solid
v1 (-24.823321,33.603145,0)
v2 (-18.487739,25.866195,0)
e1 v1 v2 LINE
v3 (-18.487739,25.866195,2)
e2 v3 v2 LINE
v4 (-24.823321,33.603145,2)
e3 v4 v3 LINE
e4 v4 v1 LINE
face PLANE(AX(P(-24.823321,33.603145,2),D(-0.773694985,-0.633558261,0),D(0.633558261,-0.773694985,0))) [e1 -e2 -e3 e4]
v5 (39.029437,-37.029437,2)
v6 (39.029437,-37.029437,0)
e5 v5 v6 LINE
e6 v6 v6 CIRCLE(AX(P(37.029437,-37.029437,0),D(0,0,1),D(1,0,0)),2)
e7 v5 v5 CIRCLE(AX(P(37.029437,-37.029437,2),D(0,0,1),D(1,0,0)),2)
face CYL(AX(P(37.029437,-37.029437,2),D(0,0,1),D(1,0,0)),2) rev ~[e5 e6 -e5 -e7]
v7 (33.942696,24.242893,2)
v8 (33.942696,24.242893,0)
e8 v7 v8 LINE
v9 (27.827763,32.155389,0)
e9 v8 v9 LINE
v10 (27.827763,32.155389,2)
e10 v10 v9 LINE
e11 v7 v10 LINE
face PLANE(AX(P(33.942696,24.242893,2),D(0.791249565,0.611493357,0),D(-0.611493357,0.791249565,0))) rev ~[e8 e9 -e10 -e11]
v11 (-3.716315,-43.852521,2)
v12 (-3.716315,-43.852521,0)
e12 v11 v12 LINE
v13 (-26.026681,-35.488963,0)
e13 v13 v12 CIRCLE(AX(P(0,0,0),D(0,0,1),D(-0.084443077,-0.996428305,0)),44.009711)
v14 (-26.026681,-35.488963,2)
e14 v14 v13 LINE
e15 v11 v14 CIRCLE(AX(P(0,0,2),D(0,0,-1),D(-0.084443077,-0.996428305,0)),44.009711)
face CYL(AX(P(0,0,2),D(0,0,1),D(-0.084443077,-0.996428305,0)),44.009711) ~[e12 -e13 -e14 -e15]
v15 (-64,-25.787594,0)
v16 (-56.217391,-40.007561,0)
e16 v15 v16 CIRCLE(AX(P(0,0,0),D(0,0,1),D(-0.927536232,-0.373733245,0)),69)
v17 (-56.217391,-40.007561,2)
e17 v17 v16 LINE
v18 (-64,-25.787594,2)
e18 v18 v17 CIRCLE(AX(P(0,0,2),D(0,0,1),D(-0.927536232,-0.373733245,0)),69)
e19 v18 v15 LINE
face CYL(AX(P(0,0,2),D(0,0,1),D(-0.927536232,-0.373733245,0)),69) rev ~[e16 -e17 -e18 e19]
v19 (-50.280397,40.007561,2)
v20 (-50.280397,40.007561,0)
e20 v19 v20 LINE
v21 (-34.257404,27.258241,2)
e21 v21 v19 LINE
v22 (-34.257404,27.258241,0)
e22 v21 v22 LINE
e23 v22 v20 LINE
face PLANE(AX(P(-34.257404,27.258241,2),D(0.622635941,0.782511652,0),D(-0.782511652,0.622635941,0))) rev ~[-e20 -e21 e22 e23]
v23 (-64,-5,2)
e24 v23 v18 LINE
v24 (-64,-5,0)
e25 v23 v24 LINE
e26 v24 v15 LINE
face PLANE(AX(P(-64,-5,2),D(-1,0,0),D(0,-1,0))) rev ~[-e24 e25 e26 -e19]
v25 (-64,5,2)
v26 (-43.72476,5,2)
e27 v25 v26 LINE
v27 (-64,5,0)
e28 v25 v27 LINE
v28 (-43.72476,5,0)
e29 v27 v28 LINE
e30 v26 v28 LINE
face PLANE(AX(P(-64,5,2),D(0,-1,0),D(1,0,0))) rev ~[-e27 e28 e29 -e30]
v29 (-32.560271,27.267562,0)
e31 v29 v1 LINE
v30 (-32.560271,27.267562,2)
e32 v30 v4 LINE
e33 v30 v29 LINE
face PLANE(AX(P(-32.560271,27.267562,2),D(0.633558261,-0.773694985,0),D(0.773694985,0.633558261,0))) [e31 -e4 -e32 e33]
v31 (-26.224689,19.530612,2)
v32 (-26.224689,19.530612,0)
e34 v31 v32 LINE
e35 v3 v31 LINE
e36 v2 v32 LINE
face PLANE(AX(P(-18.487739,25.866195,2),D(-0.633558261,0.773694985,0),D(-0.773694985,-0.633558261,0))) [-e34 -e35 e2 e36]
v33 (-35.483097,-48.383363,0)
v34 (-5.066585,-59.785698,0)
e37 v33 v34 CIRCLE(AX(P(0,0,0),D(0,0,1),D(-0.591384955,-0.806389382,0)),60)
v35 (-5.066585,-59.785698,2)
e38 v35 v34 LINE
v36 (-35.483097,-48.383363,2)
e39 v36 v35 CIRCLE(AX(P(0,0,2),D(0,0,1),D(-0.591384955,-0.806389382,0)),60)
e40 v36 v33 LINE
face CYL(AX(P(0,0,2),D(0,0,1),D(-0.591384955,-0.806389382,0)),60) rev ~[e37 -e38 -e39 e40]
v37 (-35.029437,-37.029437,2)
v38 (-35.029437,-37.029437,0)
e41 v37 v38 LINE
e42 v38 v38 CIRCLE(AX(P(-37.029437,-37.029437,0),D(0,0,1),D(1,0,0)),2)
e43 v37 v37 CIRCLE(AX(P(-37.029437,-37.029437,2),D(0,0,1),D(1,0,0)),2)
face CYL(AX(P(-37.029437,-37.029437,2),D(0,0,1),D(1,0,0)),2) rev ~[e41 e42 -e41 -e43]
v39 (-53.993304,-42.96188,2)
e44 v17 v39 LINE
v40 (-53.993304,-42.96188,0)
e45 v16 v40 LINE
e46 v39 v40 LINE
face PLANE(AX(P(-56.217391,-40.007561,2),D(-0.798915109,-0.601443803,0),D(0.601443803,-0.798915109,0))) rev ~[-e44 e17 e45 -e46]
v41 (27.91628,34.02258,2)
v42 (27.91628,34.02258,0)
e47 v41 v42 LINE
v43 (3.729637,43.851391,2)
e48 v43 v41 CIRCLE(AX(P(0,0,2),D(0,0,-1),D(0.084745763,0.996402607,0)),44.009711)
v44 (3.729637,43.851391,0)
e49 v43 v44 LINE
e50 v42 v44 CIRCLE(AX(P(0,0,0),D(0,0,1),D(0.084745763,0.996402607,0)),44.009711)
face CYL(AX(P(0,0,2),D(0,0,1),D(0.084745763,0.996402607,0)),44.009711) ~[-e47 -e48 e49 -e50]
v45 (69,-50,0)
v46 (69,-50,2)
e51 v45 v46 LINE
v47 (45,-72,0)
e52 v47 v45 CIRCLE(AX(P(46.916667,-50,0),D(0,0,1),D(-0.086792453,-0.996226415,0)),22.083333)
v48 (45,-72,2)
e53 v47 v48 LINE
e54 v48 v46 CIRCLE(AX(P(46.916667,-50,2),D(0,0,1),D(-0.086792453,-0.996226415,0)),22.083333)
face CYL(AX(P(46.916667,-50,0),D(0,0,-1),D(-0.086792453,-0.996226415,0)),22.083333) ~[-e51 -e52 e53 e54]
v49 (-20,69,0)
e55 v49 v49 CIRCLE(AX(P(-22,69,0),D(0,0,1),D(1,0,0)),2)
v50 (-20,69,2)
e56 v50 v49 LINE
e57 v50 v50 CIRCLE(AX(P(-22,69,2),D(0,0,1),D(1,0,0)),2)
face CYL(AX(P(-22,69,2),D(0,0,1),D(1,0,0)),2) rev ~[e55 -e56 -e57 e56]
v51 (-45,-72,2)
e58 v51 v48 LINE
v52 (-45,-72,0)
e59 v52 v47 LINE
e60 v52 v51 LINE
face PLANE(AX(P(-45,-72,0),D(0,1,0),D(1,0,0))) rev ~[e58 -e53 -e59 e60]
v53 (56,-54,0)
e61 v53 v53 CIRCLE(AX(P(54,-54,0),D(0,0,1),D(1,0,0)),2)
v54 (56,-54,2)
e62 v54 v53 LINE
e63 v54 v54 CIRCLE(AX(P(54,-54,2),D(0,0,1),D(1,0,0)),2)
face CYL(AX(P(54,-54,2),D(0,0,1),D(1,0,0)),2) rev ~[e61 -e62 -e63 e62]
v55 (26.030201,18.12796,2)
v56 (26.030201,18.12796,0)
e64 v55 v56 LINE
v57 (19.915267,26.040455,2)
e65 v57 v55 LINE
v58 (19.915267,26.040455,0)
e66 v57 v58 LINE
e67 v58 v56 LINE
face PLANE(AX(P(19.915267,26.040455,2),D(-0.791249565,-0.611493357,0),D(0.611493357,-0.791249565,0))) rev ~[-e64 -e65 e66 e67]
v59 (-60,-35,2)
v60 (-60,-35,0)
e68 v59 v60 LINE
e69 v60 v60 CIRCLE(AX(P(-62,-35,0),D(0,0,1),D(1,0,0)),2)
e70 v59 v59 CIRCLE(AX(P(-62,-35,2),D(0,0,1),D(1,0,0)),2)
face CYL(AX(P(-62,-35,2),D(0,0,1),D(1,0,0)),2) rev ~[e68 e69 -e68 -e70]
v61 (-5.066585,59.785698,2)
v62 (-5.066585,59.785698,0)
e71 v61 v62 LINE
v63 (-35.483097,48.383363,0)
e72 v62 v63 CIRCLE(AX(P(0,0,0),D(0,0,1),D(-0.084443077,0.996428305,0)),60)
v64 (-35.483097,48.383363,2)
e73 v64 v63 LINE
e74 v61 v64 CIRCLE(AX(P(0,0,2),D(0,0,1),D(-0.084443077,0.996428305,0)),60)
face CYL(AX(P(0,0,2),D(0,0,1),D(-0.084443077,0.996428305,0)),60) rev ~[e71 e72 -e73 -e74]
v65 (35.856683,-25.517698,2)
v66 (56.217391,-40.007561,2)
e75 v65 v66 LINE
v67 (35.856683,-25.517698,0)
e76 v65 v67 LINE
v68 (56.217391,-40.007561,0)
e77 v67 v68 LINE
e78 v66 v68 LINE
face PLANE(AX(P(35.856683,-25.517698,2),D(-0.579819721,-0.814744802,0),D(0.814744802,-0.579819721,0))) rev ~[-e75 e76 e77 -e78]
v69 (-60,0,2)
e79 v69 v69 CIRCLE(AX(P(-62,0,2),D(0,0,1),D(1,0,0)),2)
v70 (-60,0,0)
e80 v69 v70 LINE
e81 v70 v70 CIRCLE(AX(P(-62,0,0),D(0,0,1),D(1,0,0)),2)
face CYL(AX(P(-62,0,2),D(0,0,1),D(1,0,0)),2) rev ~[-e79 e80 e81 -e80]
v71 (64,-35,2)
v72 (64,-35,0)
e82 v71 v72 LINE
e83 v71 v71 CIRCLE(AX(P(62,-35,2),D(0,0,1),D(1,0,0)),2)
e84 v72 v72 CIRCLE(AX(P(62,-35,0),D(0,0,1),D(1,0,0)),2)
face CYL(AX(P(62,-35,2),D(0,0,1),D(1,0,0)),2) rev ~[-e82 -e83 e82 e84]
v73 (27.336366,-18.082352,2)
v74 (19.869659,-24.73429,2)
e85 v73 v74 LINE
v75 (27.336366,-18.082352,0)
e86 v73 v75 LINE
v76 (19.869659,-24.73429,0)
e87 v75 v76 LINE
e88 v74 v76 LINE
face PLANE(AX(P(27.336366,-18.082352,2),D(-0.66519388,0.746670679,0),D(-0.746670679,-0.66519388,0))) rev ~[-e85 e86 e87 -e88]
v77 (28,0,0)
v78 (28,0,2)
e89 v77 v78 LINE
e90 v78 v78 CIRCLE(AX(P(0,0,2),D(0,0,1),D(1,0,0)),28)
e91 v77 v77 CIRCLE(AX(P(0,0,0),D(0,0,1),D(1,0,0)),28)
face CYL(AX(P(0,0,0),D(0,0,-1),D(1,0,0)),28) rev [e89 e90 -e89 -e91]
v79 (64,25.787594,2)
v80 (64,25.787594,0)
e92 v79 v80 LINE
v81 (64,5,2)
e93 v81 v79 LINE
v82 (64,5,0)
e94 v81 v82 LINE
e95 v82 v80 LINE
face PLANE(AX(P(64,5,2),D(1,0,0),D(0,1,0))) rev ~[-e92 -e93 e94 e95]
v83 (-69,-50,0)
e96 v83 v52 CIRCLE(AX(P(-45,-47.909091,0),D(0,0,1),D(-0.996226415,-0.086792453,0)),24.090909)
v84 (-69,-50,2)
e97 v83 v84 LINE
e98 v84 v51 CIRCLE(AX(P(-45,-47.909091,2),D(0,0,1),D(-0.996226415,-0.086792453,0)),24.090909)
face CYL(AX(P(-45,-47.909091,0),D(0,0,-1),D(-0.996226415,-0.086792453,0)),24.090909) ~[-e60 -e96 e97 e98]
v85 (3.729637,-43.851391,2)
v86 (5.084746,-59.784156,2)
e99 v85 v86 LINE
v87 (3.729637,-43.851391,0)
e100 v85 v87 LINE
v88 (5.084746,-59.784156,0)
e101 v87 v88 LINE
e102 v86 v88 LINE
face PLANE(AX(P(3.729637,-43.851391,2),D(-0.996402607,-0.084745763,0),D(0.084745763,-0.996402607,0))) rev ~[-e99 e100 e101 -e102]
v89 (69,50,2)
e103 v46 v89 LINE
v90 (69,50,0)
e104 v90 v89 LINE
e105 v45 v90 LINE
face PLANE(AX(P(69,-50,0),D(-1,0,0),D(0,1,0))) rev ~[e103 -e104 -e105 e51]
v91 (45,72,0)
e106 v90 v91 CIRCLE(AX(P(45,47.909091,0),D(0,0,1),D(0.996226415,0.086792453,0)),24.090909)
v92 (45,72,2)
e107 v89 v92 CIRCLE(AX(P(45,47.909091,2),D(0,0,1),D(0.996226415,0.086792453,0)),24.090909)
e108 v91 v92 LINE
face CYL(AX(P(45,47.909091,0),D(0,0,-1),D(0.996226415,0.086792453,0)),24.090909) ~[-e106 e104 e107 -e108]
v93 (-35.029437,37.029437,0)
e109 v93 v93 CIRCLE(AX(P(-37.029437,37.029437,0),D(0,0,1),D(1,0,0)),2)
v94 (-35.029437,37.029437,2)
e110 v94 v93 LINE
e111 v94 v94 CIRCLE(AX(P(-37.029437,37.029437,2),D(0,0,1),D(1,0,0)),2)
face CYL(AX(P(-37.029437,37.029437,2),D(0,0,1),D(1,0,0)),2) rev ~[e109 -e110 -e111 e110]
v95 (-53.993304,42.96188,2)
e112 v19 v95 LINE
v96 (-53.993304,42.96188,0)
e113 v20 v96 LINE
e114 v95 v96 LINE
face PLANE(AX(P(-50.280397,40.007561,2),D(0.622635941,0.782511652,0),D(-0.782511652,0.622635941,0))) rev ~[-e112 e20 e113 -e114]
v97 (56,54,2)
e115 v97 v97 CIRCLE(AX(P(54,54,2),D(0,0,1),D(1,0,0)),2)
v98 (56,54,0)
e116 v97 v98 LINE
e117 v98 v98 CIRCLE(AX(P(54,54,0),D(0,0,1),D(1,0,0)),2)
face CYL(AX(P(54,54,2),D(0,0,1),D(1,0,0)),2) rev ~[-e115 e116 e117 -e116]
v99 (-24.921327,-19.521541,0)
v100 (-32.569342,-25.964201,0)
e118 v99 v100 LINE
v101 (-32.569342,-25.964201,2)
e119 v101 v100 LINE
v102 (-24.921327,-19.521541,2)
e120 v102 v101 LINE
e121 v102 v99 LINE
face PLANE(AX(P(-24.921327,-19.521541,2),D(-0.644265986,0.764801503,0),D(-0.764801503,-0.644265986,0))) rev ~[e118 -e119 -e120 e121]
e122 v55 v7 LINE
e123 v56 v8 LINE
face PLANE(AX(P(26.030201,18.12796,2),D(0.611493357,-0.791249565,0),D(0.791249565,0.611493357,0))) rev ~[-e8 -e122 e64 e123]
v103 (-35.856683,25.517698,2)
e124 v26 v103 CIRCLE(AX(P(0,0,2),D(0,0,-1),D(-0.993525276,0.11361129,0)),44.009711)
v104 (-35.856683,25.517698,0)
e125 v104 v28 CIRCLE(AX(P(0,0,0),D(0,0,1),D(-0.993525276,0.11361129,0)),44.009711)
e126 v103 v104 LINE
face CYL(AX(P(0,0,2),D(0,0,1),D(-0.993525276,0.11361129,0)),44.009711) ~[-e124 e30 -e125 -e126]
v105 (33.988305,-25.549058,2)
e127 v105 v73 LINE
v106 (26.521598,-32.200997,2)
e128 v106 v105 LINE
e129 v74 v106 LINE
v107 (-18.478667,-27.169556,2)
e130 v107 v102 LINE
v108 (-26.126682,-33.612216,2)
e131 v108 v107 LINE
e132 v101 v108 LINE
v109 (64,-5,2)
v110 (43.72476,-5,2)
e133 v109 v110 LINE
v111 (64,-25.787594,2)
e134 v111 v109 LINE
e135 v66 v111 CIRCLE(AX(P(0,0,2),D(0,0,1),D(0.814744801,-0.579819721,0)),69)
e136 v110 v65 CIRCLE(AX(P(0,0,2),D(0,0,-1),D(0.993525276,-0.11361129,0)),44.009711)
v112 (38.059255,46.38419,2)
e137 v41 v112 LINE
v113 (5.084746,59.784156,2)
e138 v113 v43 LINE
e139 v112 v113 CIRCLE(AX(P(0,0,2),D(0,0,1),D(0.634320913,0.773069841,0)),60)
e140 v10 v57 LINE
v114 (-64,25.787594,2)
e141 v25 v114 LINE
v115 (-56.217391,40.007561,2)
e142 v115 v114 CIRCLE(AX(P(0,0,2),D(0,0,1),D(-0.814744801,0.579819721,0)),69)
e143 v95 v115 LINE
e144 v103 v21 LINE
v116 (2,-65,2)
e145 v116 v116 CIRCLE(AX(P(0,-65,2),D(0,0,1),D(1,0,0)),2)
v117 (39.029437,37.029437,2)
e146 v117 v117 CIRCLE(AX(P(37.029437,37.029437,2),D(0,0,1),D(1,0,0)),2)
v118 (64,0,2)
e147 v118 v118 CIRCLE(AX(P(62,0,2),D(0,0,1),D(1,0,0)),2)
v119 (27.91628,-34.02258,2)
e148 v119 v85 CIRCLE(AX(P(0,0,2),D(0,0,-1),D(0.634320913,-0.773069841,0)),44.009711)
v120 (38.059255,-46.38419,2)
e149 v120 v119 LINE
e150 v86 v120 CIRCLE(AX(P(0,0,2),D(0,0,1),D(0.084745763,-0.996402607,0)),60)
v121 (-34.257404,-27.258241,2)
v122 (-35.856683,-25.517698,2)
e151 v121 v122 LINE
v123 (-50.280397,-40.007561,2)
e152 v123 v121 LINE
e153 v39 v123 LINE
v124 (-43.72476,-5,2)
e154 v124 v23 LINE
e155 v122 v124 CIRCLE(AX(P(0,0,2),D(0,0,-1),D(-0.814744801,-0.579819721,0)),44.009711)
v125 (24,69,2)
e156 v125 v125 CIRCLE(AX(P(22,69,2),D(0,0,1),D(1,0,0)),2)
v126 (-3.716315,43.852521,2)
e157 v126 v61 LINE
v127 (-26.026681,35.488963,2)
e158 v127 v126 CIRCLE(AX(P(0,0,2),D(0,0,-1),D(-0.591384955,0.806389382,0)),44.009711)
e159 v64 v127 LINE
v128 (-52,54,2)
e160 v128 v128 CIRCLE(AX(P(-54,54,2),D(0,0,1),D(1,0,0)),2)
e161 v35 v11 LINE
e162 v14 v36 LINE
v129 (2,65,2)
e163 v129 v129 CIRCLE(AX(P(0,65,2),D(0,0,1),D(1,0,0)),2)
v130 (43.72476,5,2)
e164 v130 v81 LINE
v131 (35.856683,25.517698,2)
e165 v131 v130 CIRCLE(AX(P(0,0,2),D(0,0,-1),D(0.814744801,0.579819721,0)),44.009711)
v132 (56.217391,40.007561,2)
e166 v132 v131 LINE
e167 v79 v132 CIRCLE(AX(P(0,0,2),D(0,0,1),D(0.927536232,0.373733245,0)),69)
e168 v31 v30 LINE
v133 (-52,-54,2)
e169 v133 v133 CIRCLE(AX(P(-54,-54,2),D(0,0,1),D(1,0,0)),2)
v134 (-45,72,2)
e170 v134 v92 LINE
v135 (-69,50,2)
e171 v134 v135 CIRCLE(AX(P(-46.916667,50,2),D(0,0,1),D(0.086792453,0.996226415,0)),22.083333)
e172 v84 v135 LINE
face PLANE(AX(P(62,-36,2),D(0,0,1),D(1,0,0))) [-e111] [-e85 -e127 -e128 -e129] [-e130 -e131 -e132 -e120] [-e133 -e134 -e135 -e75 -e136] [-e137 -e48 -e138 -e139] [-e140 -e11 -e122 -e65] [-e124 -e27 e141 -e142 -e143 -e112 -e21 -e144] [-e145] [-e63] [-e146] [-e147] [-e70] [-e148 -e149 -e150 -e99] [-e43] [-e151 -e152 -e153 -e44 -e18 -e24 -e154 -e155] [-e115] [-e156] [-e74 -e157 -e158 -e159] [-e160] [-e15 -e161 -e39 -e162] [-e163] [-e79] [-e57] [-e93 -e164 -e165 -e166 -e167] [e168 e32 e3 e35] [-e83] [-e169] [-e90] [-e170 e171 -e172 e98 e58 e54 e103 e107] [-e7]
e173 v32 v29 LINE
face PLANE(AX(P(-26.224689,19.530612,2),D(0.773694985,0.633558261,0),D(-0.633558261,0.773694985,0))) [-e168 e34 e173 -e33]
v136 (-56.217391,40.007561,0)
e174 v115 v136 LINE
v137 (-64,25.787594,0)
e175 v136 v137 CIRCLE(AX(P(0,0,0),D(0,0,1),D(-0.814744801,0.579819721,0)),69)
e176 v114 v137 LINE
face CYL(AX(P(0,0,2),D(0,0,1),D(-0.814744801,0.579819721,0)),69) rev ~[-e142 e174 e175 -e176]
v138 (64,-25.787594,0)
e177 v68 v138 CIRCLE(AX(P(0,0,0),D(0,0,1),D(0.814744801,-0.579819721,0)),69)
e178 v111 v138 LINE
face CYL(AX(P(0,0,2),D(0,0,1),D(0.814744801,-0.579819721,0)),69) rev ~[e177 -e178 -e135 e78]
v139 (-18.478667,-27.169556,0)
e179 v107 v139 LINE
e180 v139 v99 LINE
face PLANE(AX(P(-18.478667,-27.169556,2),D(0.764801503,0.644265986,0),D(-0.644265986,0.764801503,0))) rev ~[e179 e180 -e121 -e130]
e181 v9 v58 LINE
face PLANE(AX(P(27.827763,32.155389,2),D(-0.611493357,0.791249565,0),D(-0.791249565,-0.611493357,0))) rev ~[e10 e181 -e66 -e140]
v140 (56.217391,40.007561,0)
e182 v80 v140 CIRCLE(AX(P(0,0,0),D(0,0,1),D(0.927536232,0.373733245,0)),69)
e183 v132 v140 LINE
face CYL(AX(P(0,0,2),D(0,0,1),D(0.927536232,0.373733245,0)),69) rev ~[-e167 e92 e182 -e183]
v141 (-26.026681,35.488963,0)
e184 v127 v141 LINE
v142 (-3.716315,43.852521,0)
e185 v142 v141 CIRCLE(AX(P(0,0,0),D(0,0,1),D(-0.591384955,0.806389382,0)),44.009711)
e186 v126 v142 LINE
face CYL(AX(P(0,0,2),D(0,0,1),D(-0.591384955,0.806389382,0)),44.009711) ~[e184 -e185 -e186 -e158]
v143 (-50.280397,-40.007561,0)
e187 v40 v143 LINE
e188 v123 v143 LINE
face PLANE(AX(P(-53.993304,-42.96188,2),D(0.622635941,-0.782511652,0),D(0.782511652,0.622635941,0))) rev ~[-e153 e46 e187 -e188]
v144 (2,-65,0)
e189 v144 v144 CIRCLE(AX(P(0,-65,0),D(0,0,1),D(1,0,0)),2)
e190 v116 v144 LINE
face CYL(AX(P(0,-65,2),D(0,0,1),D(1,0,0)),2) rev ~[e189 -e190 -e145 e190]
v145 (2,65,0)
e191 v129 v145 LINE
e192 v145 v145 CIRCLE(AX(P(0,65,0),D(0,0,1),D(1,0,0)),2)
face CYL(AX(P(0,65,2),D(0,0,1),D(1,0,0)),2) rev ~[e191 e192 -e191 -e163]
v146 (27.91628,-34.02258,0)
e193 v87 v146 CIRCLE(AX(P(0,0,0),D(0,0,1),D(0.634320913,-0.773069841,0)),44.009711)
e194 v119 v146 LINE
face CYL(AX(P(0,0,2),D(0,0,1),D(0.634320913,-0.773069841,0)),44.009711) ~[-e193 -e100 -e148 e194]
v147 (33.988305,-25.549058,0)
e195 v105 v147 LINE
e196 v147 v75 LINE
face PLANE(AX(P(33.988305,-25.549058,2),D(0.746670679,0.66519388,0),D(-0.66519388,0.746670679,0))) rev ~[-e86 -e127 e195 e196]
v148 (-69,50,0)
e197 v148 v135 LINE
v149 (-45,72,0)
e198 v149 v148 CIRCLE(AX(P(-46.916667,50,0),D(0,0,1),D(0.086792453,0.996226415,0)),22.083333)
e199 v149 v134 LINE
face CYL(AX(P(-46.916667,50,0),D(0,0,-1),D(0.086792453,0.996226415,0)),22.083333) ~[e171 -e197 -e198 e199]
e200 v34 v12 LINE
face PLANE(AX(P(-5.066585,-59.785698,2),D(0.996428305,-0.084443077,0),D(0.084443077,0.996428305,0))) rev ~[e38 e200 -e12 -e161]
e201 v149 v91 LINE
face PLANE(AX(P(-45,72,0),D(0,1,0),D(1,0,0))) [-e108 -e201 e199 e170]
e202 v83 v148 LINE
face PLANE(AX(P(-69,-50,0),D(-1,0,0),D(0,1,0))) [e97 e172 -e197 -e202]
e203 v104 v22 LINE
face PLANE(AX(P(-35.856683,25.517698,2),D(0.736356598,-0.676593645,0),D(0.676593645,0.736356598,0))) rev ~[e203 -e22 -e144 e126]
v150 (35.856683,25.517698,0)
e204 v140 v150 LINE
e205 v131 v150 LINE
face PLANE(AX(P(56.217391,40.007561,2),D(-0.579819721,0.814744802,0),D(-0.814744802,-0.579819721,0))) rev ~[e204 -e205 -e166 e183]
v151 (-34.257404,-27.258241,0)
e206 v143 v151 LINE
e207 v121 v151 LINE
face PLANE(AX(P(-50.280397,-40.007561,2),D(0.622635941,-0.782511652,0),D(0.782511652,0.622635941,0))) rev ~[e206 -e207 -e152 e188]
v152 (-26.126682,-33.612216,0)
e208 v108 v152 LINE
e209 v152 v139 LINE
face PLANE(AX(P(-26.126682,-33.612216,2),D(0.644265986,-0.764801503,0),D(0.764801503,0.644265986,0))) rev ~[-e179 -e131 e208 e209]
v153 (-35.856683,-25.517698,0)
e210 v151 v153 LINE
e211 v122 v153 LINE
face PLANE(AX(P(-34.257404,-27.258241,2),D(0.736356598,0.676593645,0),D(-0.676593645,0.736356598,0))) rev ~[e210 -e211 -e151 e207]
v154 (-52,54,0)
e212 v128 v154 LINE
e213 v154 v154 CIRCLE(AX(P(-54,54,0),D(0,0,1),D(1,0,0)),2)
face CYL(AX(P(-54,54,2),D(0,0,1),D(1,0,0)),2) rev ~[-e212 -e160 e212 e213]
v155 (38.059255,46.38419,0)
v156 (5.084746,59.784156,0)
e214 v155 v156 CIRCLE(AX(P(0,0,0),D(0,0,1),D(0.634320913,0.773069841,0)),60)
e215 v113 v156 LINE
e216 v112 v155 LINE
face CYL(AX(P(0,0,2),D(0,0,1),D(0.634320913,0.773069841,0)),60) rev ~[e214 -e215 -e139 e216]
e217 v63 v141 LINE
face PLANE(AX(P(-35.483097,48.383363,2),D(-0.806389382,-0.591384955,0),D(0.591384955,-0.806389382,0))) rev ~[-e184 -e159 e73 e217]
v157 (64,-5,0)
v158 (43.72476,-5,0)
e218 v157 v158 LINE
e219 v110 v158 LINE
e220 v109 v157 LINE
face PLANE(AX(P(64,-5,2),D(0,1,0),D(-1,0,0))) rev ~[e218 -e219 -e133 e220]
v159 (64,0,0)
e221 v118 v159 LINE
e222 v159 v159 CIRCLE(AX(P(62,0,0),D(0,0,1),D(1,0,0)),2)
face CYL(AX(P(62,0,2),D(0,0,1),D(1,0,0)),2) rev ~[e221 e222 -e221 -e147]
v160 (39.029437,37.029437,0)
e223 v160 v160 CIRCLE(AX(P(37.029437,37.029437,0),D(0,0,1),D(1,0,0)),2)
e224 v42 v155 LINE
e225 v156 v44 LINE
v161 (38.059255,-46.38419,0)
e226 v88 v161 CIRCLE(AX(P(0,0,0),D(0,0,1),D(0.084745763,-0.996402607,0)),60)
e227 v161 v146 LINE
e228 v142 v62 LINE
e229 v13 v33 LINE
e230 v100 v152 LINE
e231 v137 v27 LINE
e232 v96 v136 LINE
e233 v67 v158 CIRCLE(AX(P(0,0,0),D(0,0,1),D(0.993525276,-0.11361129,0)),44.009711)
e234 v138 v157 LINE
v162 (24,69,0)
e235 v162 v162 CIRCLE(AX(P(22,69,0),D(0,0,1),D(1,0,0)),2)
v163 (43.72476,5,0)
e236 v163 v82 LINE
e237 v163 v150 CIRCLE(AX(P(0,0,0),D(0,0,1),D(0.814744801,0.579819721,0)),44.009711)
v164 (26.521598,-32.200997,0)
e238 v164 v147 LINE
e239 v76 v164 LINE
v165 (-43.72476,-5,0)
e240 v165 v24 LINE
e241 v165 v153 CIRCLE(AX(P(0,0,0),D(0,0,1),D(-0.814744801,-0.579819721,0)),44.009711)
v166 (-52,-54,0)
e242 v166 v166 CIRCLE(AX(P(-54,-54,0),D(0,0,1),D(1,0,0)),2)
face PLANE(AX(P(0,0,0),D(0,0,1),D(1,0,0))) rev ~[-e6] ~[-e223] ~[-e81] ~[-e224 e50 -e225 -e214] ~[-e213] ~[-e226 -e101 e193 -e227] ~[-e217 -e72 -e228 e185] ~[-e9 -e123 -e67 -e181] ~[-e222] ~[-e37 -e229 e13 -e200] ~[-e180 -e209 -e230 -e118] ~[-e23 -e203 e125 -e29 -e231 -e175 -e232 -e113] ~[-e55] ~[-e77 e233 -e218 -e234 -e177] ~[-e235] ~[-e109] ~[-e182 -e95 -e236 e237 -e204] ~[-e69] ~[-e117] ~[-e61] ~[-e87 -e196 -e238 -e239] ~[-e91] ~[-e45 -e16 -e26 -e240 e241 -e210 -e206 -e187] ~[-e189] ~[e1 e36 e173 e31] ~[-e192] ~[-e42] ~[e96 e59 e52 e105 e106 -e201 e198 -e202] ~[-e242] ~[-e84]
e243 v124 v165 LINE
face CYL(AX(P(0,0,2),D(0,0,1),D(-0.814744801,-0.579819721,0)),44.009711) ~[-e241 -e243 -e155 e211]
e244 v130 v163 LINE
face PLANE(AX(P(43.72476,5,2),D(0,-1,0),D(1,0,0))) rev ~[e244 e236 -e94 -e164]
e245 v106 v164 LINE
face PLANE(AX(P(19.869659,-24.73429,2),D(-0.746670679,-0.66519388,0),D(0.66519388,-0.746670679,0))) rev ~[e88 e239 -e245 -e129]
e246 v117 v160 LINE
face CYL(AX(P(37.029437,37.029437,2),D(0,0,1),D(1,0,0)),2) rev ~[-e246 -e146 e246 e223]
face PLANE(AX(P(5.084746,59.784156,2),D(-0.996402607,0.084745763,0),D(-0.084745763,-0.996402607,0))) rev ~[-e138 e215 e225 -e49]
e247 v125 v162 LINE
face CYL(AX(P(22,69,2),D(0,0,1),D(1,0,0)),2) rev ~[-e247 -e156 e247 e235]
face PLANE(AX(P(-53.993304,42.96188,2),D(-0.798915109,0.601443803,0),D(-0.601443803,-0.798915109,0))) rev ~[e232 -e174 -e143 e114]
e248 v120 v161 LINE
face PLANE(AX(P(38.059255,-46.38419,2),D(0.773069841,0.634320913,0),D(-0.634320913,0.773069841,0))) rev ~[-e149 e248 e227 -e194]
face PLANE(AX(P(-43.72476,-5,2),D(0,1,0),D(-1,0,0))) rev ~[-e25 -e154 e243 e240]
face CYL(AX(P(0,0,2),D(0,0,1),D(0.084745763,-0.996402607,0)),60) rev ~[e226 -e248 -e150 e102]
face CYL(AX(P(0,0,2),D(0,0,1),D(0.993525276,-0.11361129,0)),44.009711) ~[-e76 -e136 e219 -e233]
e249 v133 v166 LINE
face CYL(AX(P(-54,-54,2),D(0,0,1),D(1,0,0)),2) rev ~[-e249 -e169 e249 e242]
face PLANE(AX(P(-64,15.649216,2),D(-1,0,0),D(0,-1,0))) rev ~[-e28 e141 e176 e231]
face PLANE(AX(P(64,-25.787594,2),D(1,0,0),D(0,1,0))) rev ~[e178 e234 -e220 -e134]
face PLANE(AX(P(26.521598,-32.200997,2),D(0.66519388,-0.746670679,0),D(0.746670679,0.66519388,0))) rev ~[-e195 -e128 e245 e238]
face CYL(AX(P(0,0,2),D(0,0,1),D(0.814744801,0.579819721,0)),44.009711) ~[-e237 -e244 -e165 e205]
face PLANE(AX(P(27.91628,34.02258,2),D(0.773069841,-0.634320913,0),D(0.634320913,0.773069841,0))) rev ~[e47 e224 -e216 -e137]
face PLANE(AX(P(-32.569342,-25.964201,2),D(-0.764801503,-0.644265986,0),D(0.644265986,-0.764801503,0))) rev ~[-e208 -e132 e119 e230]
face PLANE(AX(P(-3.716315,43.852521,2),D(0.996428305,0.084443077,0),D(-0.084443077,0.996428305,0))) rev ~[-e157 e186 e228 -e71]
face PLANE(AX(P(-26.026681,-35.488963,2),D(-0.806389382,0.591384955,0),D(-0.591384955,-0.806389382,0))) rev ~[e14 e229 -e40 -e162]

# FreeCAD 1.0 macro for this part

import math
import FreeCAD as App
import Part
import Sketcher


def add_polygon(sketch, points):
    """Adds a closed chain of lines whose ends are joined by coincident constraints."""
    first, n = sketch.GeometryCount, len(points)
    for a, b in zip(points, points[1:] + points[:1]):
        sketch.addGeometry(Part.LineSegment(App.Vector(*a, 0), App.Vector(*b, 0)), False)
    for i in range(n):
        sketch.addConstraint(Sketcher.Constraint("Coincident", first + i, 2, first + (i + 1) % n, 1))

doc = App.newDocument("Part")
body = doc.addObject("PartDesign::Body", "Body")

# Sketch on XY plane
sketch1 = body.newObject("Sketcher::SketchObject", "Sketch")
sketch1.AttachmentSupport = (doc.getObject("XY_Plane"), [""])
sketch1.MapMode = "FlatFace"
sketch1.addGeometry([
    Part.ArcOfCircle(Part.Circle(App.Vector(47, -50, 0), App.Vector(0, 0, 1), 22), math.radians(-95), math.radians(0)),  # 0
    Part.LineSegment(App.Vector(69, -50, 0), App.Vector(69, 50, 0)),  # 1
    Part.ArcOfCircle(Part.Circle(App.Vector(45, 48, 0), App.Vector(0, 0, 1), 24), math.radians(5), math.radians(90)),  # 2
    Part.LineSegment(App.Vector(45, 72, 0), App.Vector(-45, 72, 0)),  # 3
    Part.ArcOfCircle(Part.Circle(App.Vector(-47, 50, 0), App.Vector(0, 0, 1), 22), math.radians(85), math.radians(180)),  # 4
    Part.LineSegment(App.Vector(-69, 50, 0), App.Vector(-69, -50, 0)),  # 5
    Part.ArcOfCircle(Part.Circle(App.Vector(-45, -48, 0), App.Vector(0, 0, 1), 24), math.radians(-175), math.radians(-90)),  # 6
    Part.LineSegment(App.Vector(-45, -72, 0), App.Vector(45, -72, 0)),  # 7
], False)
sketch1.addConstraint([
    Sketcher.Constraint("Tangent", 0, 2, 1, 1),
    Sketcher.Constraint("Coincident", 1, 2, 2, 1),
    Sketcher.Constraint("Tangent", 2, 2, 3, 1),
    Sketcher.Constraint("Coincident", 3, 2, 4, 1),
    Sketcher.Constraint("Tangent", 4, 2, 5, 1),
    Sketcher.Constraint("Coincident", 5, 2, 6, 1),
    Sketcher.Constraint("Tangent", 6, 2, 7, 1),
    Sketcher.Constraint("Coincident", 7, 2, 0, 1),
    Sketcher.Constraint("Vertical", 1),
    Sketcher.Constraint("Horizontal", 3),
    Sketcher.Constraint("Vertical", 5),
    Sketcher.Constraint("Horizontal", 7),
    Sketcher.Constraint("Equal", 0, 4),
    Sketcher.Constraint("Equal", 2, 6),
    Sketcher.Constraint("Symmetric", 0, 3, 4, 3, -1, 1),
    Sketcher.Constraint("Symmetric", 2, 3, 6, 3, -1, 1),
    Sketcher.Constraint("Horizontal", 4, 3, 1, 2),
    Sketcher.Constraint("Vertical", 6, 3, 3, 2),
    Sketcher.Constraint("DistanceX", 3, 2, 3, 1, 90.0),
    Sketcher.Constraint("DistanceY", 1, 1, 1, 2, 100.0),
    Sketcher.Constraint("DistanceX", -1, 1, 0, 2, 69.0),
    Sketcher.Constraint("DistanceY", -1, 1, 2, 2, 72.0),
])
pad1 = body.newObject("PartDesign::Pad", "Pad")
pad1.Profile = sketch1
pad1.Length = 2

# Sketch on XY plane
sketch2 = body.newObject("Sketcher::SketchObject", "Sketch001")
sketch2.AttachmentSupport = (doc.getObject("XY_Plane"), [""])
sketch2.MapMode = "FlatFace"
sketch2.AttachmentOffset = App.Placement(App.Vector(0, 0, 2), App.Rotation())
sketch2.addGeometry([
    Part.LineSegment(App.Vector(-60.8, 25.8, 0), App.Vector(-64, 15.6, 0)),  # 0
    Part.LineSegment(App.Vector(-64, 15.6, 0), App.Vector(-64, 5, 0)),  # 1
    Part.LineSegment(App.Vector(-64, 5, 0), App.Vector(-43.7, 5, 0)),  # 2
    Part.ArcOfCircle(Part.Circle(App.Vector(0, 0, 0), App.Vector(0, 0, 1), 44), math.radians(145), math.radians(173)),  # 3
    Part.LineSegment(App.Vector(-35.9, 25.5, 0), App.Vector(-56.2, 40, 0)),  # 4
    Part.ArcOfCircle(Part.Circle(App.Vector(0, 0, 0), App.Vector(0, 0, 1), 69), math.radians(144.56), math.radians(158.05)),  # 5
    Part.LineSegment(App.Vector(-64, 25.8, 0), App.Vector(-60.8, 25.8, 0)),  # 6
    Part.LineSegment(App.Vector(-64, -5, 0), App.Vector(-64, -25.8, 0)),  # 7
    Part.ArcOfCircle(Part.Circle(App.Vector(0, 0, 0), App.Vector(0, 0, 1), 69), math.radians(-158.05), math.radians(-144.56)),  # 8
    Part.LineSegment(App.Vector(-56.2, -40, 0), App.Vector(-35.9, -25.5, 0)),  # 9
    Part.ArcOfCircle(Part.Circle(App.Vector(0, 0, 0), App.Vector(0, 0, 1), 44), math.radians(-173), math.radians(-145)),  # 10
    Part.LineSegment(App.Vector(-43.7, -5, 0), App.Vector(-64, -5, 0)),  # 11
    Part.LineSegment(App.Vector(-35.5, 48.4, 0), App.Vector(-26, 35.5, 0)),  # 12
    Part.ArcOfCircle(Part.Circle(App.Vector(0, 0, 0), App.Vector(0, 0, 1), 44), math.radians(95), math.radians(126)),  # 13
    Part.LineSegment(App.Vector(-3.7, 43.9, 0), App.Vector(-5.1, 59.8, 0)),  # 14
    Part.ArcOfCircle(Part.Circle(App.Vector(0, 0, 0), App.Vector(0, 0, 1), 60), math.radians(95), math.radians(126)),  # 15
    Part.ArcOfCircle(Part.Circle(App.Vector(0, 0, 0), App.Vector(0, 0, 1), 69), math.radians(21.95), math.radians(35.44)),  # 16
    Part.LineSegment(App.Vector(56.2, 40, 0), App.Vector(35.9, 25.5, 0)),  # 17
    Part.ArcOfCircle(Part.Circle(App.Vector(0, 0, 0), App.Vector(0, 0, 1), 44), math.radians(7), math.radians(35)),  # 18
    Part.LineSegment(App.Vector(43.7, 5, 0), App.Vector(64, 5, 0)),  # 19
    Part.LineSegment(App.Vector(64, 5, 0), App.Vector(64, 25.8, 0)),  # 20
    Part.LineSegment(App.Vector(-26, -35.5, 0), App.Vector(-35.5, -48.4, 0)),  # 21
    Part.ArcOfCircle(Part.Circle(App.Vector(0, 0, 0), App.Vector(0, 0, 1), 60), math.radians(-126), math.radians(-95)),  # 22
    Part.LineSegment(App.Vector(-5.1, -59.8, 0), App.Vector(-3.7, -43.9, 0)),  # 23
    Part.ArcOfCircle(Part.Circle(App.Vector(0, 0, 0), App.Vector(0, 0, 1), 44), math.radians(-126), math.radians(-95)),  # 24
    Part.ArcOfCircle(Part.Circle(App.Vector(0, 0, 0), App.Vector(0, 0, 1), 69), math.radians(-35.44), math.radians(-21.95)),  # 25
    Part.LineSegment(App.Vector(64, -25.8, 0), App.Vector(64, -5, 0)),  # 26
    Part.LineSegment(App.Vector(64, -5, 0), App.Vector(43.7, -5, 0)),  # 27
    Part.ArcOfCircle(Part.Circle(App.Vector(0, 0, 0), App.Vector(0, 0, 1), 44), math.radians(-35), math.radians(-7)),  # 28
    Part.LineSegment(App.Vector(35.9, -25.5, 0), App.Vector(56.2, -40, 0)),  # 29
    Part.LineSegment(App.Vector(27.9, 34, 0), App.Vector(38.1, 46.4, 0)),  # 30
    Part.ArcOfCircle(Part.Circle(App.Vector(0, 0, 0), App.Vector(0, 0, 1), 60), math.radians(51), math.radians(85)),  # 31
    Part.LineSegment(App.Vector(5.1, 59.8, 0), App.Vector(3.7, 43.9, 0)),  # 32
    Part.ArcOfCircle(Part.Circle(App.Vector(0, 0, 0), App.Vector(0, 0, 1), 44), math.radians(51), math.radians(85)),  # 33
    Part.LineSegment(App.Vector(3.7, -43.9, 0), App.Vector(5.1, -59.8, 0)),  # 34
    Part.ArcOfCircle(Part.Circle(App.Vector(0, 0, 0), App.Vector(0, 0, 1), 60), math.radians(-85), math.radians(-51)),  # 35
    Part.LineSegment(App.Vector(38.1, -46.4, 0), App.Vector(27.9, -34, 0)),  # 36
    Part.ArcOfCircle(Part.Circle(App.Vector(0, 0, 0), App.Vector(0, 0, 1), 44), math.radians(-85), math.radians(-51)),  # 37
], False)
sketch2.addConstraint([
    Sketcher.Constraint("Coincident", 0, 2, 1, 1),
    Sketcher.Constraint("Coincident", 1, 2, 2, 1),
    Sketcher.Constraint("Coincident", 2, 2, 3, 2),
    Sketcher.Constraint("Coincident", 3, 1, 4, 1),
    Sketcher.Constraint("Coincident", 4, 2, 5, 1),
    Sketcher.Constraint("Coincident", 5, 2, 6, 1),
    Sketcher.Constraint("Coincident", 6, 2, 0, 1),
    Sketcher.Constraint("Coincident", 7, 2, 8, 1),
    Sketcher.Constraint("Coincident", 8, 2, 9, 1),
    Sketcher.Constraint("Coincident", 9, 2, 10, 2),
    Sketcher.Constraint("Coincident", 10, 1, 11, 1),
    Sketcher.Constraint("Coincident", 11, 2, 7, 1),
    Sketcher.Constraint("Coincident", 12, 2, 13, 2),
    Sketcher.Constraint("Coincident", 13, 1, 14, 1),
    Sketcher.Constraint("Coincident", 14, 2, 15, 1),
    Sketcher.Constraint("Coincident", 15, 2, 12, 1),
    Sketcher.Constraint("Coincident", 16, 2, 17, 1),
    Sketcher.Constraint("Coincident", 17, 2, 18, 2),
    Sketcher.Constraint("Coincident", 18, 1, 19, 1),
    Sketcher.Constraint("Coincident", 19, 2, 20, 1),
    Sketcher.Constraint("Coincident", 20, 2, 16, 1),
    Sketcher.Constraint("Coincident", 21, 2, 22, 1),
    Sketcher.Constraint("Coincident", 22, 2, 23, 1),
    Sketcher.Constraint("Coincident", 23, 2, 24, 2),
    Sketcher.Constraint("Coincident", 24, 1, 21, 1),
    Sketcher.Constraint("Coincident", 25, 2, 26, 1),
    Sketcher.Constraint("Coincident", 26, 2, 27, 1),
    Sketcher.Constraint("Coincident", 27, 2, 28, 2),
    Sketcher.Constraint("Coincident", 28, 1, 29, 1),
    Sketcher.Constraint("Coincident", 29, 2, 25, 1),
    Sketcher.Constraint("Coincident", 30, 2, 31, 1),
    Sketcher.Constraint("Coincident", 31, 2, 32, 1),
    Sketcher.Constraint("Coincident", 32, 2, 33, 2),
    Sketcher.Constraint("Coincident", 33, 1, 30, 1),
    Sketcher.Constraint("Coincident", 34, 2, 35, 1),
    Sketcher.Constraint("Coincident", 35, 2, 36, 1),
    Sketcher.Constraint("Coincident", 36, 2, 37, 2),
    Sketcher.Constraint("Coincident", 37, 1, 34, 1),
    Sketcher.Constraint("Vertical", 1),
    Sketcher.Constraint("Horizontal", 2),
    Sketcher.Constraint("Horizontal", 6),
    Sketcher.Constraint("Vertical", 7),
    Sketcher.Constraint("Horizontal", 11),
    Sketcher.Constraint("Horizontal", 19),
    Sketcher.Constraint("Vertical", 20),
    Sketcher.Constraint("Vertical", 26),
    Sketcher.Constraint("Horizontal", 27),
    Sketcher.Constraint("Coincident", 3, 3, -1, 1),
    Sketcher.Constraint("Coincident", 5, 3, -1, 1),
    Sketcher.Constraint("Coincident", 8, 3, -1, 1),
    Sketcher.Constraint("Coincident", 10, 3, -1, 1),
    Sketcher.Constraint("Coincident", 13, 3, -1, 1),
    Sketcher.Constraint("Coincident", 15, 3, -1, 1),
    Sketcher.Constraint("Coincident", 16, 3, -1, 1),
    Sketcher.Constraint("Coincident", 18, 3, -1, 1),
    Sketcher.Constraint("Coincident", 22, 3, -1, 1),
    Sketcher.Constraint("Coincident", 24, 3, -1, 1),
    Sketcher.Constraint("Coincident", 25, 3, -1, 1),
    Sketcher.Constraint("Coincident", 28, 3, -1, 1),
    Sketcher.Constraint("Coincident", 31, 3, -1, 1),
    Sketcher.Constraint("Coincident", 33, 3, -1, 1),
    Sketcher.Constraint("Coincident", 35, 3, -1, 1),
    Sketcher.Constraint("Coincident", 37, 3, -1, 1),
    Sketcher.Constraint("Equal", 5, 8),
    Sketcher.Constraint("Equal", 3, 10),
    Sketcher.Constraint("Equal", 10, 13),
    Sketcher.Constraint("Equal", 8, 16),
    Sketcher.Constraint("Equal", 13, 18),
    Sketcher.Constraint("Equal", 15, 22),
    Sketcher.Constraint("Equal", 18, 24),
    Sketcher.Constraint("Equal", 16, 25),
    Sketcher.Constraint("Equal", 24, 28),
    Sketcher.Constraint("Equal", 22, 31),
    Sketcher.Constraint("Equal", 28, 33),
    Sketcher.Constraint("Equal", 31, 35),
    Sketcher.Constraint("Equal", 33, 37),
    Sketcher.Constraint("Symmetric", 11, 2, 19, 2, -1, 1),
    Sketcher.Constraint("Symmetric", 1, 2, 26, 2, -1, 1),
    Sketcher.Constraint("Symmetric", 1, 2, 19, 2, -2),
    Sketcher.Constraint("Parallel", 9, 17),
    Sketcher.Constraint("Parallel", 4, 29),
    Sketcher.Constraint("Horizontal", 4, 2, 16, 2),
    Sketcher.Constraint("Horizontal", 3, 1, 17, 2),
    Sketcher.Constraint("Horizontal", 6, 2, 20, 2),
    Sketcher.Constraint("Horizontal", 9, 2, 28, 1),
    Sketcher.Constraint("Vertical", 4, 2, 8, 2),
    Sketcher.Constraint("Vertical", 15, 2, 21, 2),
    Sketcher.Constraint("Vertical", 14, 2, 22, 2),
    Sketcher.Constraint("Vertical", 13, 1, 23, 2),
    Sketcher.Constraint("Vertical", 12, 2, 24, 1),
    Sketcher.Constraint("Vertical", 31, 2, 34, 2),
    Sketcher.Constraint("Vertical", 30, 2, 35, 2),
    Sketcher.Constraint("Vertical", 33, 1, 36, 2),
    Sketcher.Constraint("Vertical", 32, 2, 37, 1),
    Sketcher.Constraint("Radius", 5, 69.0),
    Sketcher.Constraint("Radius", 15, 60.0),
    Sketcher.Constraint("DistanceX", 0, 2, -1, 1, 64.0),
    Sketcher.Constraint("DistanceY", -1, 1, 1, 2, 5.0),
    Sketcher.Constraint("Radius", 3, 44.009711),
    Sketcher.Constraint("DistanceY", 3, 1, 14, 2, 34.268),
    Sketcher.Constraint("DistanceX", 13, 1, 17, 2, 39.572998),
    Sketcher.Constraint("DistanceX", 6, 1, 6, 2, 3.239261),
    Sketcher.Constraint("DistanceY", 9, 2, -1, 1, 25.517698),
    Sketcher.Constraint("DistanceY", 12, 2, 15, 2, 12.894399),
    Sketcher.Constraint("DistanceY", 32, 2, 30, 2, 2.5328),
    Sketcher.Constraint("DistanceY", 1, 2, 1, 1, 10.649216),
    Sketcher.Constraint("DistanceX", 4, 2, -1, 1, 56.217391),
    Sketcher.Constraint("DistanceX", 12, 2, -1, 1, 26.026681),
    Sketcher.Constraint("DistanceY", -1, 1, 30, 2, 46.38419),
    Sketcher.Constraint("DistanceX", -1, 1, 33, 1, 27.91628),
    Sketcher.Constraint("DistanceX", 14, 2, 31, 2, 10.15133),
])
pocket1 = body.newObject("PartDesign::Pocket", "Pocket")
pocket1.Profile = sketch2
pocket1.Length = 10

# Sketch on XY plane
sketch3 = body.newObject("Sketcher::SketchObject", "Sketch002")
sketch3.AttachmentSupport = (doc.getObject("XY_Plane"), [""])
sketch3.MapMode = "FlatFace"
sketch3.AttachmentOffset = App.Placement(App.Vector(0, 0, 2), App.Rotation())
add_polygon(sketch3, [(-64, 25.8), (-64, 15.6), (-60.8, 25.8)])  # lines 0-2
sketch3.addConstraint([
    Sketcher.Constraint("Vertical", 0),
    Sketcher.Constraint("Horizontal", 2),
    Sketcher.Constraint("DistanceX", 0, 2, -1, 1, 64.0),
    Sketcher.Constraint("DistanceX", 2, 2, 2, 1, 3.239261),
    Sketcher.Constraint("DistanceY", 0, 2, 0, 1, 10.138378),
    Sketcher.Constraint("DistanceY", -1, 1, 0, 2, 15.649216),
])
pocket2 = body.newObject("PartDesign::Pocket", "Pocket001")
pocket2.Profile = sketch3
pocket2.Length = 10

# Sketch on XY plane
sketch4 = body.newObject("Sketcher::SketchObject", "Sketch003")
sketch4.AttachmentSupport = (doc.getObject("XY_Plane"), [""])
sketch4.MapMode = "FlatFace"
sketch4.addGeometry(Part.Circle(App.Vector(0, 0, 0), App.Vector(0, 0, 1), 30), False)
sketch4.addConstraint([
    Sketcher.Constraint("Coincident", 0, 3, -1, 1),
    Sketcher.Constraint("Diameter", 0, 60.0),
])
pocket3 = body.newObject("PartDesign::Pocket", "Pocket002")
pocket3.Profile = sketch4
pocket3.Length = 10
pocket3.Reversed = True

# Sketch on XY plane
sketch5 = body.newObject("Sketcher::SketchObject", "Sketch004")
sketch5.AttachmentSupport = (doc.getObject("XY_Plane"), [""])
sketch5.MapMode = "FlatFace"
sketch5.AttachmentOffset = App.Placement(App.Vector(0, 0, 2), App.Rotation())
add_polygon(sketch5, [(-35.9, -25.5), (-56.2, -40), (-54, -43), (-50.3, -40), (-34.3, -27.3)])  # lines 0-4
add_polygon(sketch5, [(-56.2, 40), (-35.9, 25.5), (-34.3, 27.3), (-50.3, 40), (-54, 43)])  # lines 5-9
sketch5.addConstraint([
    Sketcher.Constraint("Symmetric", 4, 2, 5, 2, -1),
    Sketcher.Constraint("Symmetric", 3, 2, 6, 2, -1),
    Sketcher.Constraint("Symmetric", 2, 2, 7, 2, -1),
    Sketcher.Constraint("Symmetric", 1, 2, 8, 2, -1),
    Sketcher.Constraint("Symmetric", 0, 2, 9, 2, -1),
    Sketcher.Constraint("Parallel", 2, 3),
    Sketcher.Constraint("Horizontal", 0, 2, 2, 2),
    Sketcher.Constraint("DistanceY", 4, 2, -1, 1, 25.517698),
    Sketcher.Constraint("DistanceX", 1, 2, 3, 2, 19.7359),
    Sketcher.Constraint("DistanceY", 2, 2, 6, 2, 67.265801),
    Sketcher.Constraint("Distance", 0, 24.990289),
    Sketcher.Constraint("Distance", 2, 4.744858),
    Sketcher.Constraint("DistanceX", 0, 2, -1, 1, 56.217391),
    Sketcher.Constraint("DistanceY", 0, 2, -1, 1, 40.007561),
    Sketcher.Constraint("DistanceX", 4, 2, 3, 2, 1.599279),
])
pocket4 = body.newObject("PartDesign::Pocket", "Pocket003")
pocket4.Profile = sketch5
pocket4.Length = 10

# Sketch on XY plane
sketch6 = body.newObject("Sketcher::SketchObject", "Sketch005")
sketch6.AttachmentSupport = (doc.getObject("XY_Plane"), [""])
sketch6.MapMode = "FlatFace"
sketch6.AttachmentOffset = App.Placement(App.Vector(0, 0, 2), App.Rotation())
add_polygon(sketch6, [(-25, 34), (-33, 27), (-26, 20), (-18, 26)])  # lines 0-3
add_polygon(sketch6, [(28, 32), (20, 26), (26, 18), (34, 24)])  # lines 4-7
add_polygon(sketch6, [(34, -26), (27, -18), (20, -25), (27, -32)])  # lines 8-11
add_polygon(sketch6, [(-26, -34), (-18, -27), (-25, -20), (-33, -26)])  # lines 12-15
sketch6.addConstraint([
    Sketcher.Constraint("Perpendicular", 0, 1),
    Sketcher.Constraint("Perpendicular", 1, 2),
    Sketcher.Constraint("Perpendicular", 2, 3),
    Sketcher.Constraint("Perpendicular", 4, 5),
    Sketcher.Constraint("Perpendicular", 5, 6),
    Sketcher.Constraint("Perpendicular", 6, 7),
    Sketcher.Constraint("Perpendicular", 8, 9),
    Sketcher.Constraint("Perpendicular", 9, 10),
    Sketcher.Constraint("Perpendicular", 10, 11),
    Sketcher.Constraint("Perpendicular", 12, 13),
    Sketcher.Constraint("Perpendicular", 13, 14),
    Sketcher.Constraint("Perpendicular", 14, 15),
    Sketcher.Constraint("Equal", 0, 1),
    Sketcher.Constraint("Equal", 3, 4),
    Sketcher.Constraint("Equal", 4, 5),
    Sketcher.Constraint("Equal", 7, 8),
    Sketcher.Constraint("Equal", 8, 9),
    Sketcher.Constraint("Equal", 11, 12),
    Sketcher.Constraint("Equal", 12, 13),
    Sketcher.Constraint("Distance", 0, 10.0),
    Sketcher.Constraint("DistanceX", 14, 2, 9, 2, 52.439001),
    Sketcher.Constraint("DistanceX", -1, 1, 5, 2, 26.030201),
    Sketcher.Constraint("DistanceY", 14, 2, -1, 1, 25.964201),
    Sketcher.Constraint("DistanceY", 6, 2, 2, 2, 1.623301),
    Sketcher.Constraint("DistanceX", 2, 2, 7, 2, 46.315501),
    Sketcher.Constraint("DistanceX", 4, 2, 8, 2, 7.421099),
    Sketcher.Constraint("DistanceX", 10, 2, 6, 2, 7.421099),
    Sketcher.Constraint("DistanceX", 0, 2, -1, 1, 32.560271),
    Sketcher.Constraint("DistanceY", -1, 1, 0, 2, 27.267562),
    Sketcher.Constraint("DistanceX", 1, 2, -1, 1, 26.224689),
    Sketcher.Constraint("DistanceY", 8, 2, -1, 1, 18.082352),
    Sketcher.Constraint("DistanceY", 13, 2, -1, 1, 19.521541),
])
pocket5 = body.newObject("PartDesign::Pocket", "Pocket004")
pocket5.Profile = sketch6
pocket5.Length = 10

# Sketch on XY plane
sketch7 = body.newObject("Sketcher::SketchObject", "Sketch006")
sketch7.AttachmentSupport = (doc.getObject("XY_Plane"), [""])
sketch7.MapMode = "FlatFace"
sketch7.addGeometry([
    Part.Circle(App.Vector(0, 0, 0), App.Vector(0, 0, 1), 30),
    Part.Circle(App.Vector(0, 0, 0), App.Vector(0, 0, 1), 28),
], False)
sketch7.addConstraint([
    Sketcher.Constraint("Coincident", 0, 3, -1, 1),
    Sketcher.Constraint("Coincident", 1, 3, -1, 1),
    Sketcher.Constraint("Diameter", 0, 60.0),
    Sketcher.Constraint("Diameter", 1, 56.0),
])
pad2 = body.newObject("PartDesign::Pad", "Pad001")
pad2.Profile = sketch7
pad2.Length = 2

# Sketch on XY plane
sketch8 = body.newObject("Sketcher::SketchObject", "Sketch007")
sketch8.AttachmentSupport = (doc.getObject("XY_Plane"), [""])
sketch8.MapMode = "FlatFace"
sketch8.AttachmentOffset = App.Placement(App.Vector(0, 0, 2), App.Rotation())
sketch8.addGeometry([
    Part.Circle(App.Vector(13, 29.1, 0), App.Vector(0, 0, 1), 2),  # 0
    Part.Circle(App.Vector(-13, 29.1, 0), App.Vector(0, 0, 1), 2),  # 1
    Part.Circle(App.Vector(-22, 69, 0), App.Vector(0, 0, 1), 2),  # 2
    Part.Circle(App.Vector(22, 69, 0), App.Vector(0, 0, 1), 2),  # 3
    Part.Circle(App.Vector(62, -36.9, 0), App.Vector(0, 0, 1), 2),  # 4
    Part.Circle(App.Vector(-62, -36.9, 0), App.Vector(0, 0, 1), 2),  # 5
    Part.Circle(App.Vector(0, -36.9, 0), App.Vector(0, 0, 1), 2),  # 6
    Part.Circle(App.Vector(0, 65, 0), App.Vector(0, 0, 1), 2),  # 7
    Part.Circle(App.Vector(62, 0, 0), App.Vector(0, 0, 1), 2),  # 8
    Part.Circle(App.Vector(-62, 0, 0), App.Vector(0, 0, 1), 2),  # 9
    Part.Circle(App.Vector(0, -65, 0), App.Vector(0, 0, 1), 2),  # 10
    Part.Circle(App.Vector(-54, 54, 0), App.Vector(0, 0, 1), 2),  # 11
    Part.Circle(App.Vector(54, 54, 0), App.Vector(0, 0, 1), 2),  # 12
    Part.Circle(App.Vector(54, -54, 0), App.Vector(0, 0, 1), 2),  # 13
    Part.Circle(App.Vector(-54, -54, 0), App.Vector(0, 0, 1), 2),  # 14
    Part.Circle(App.Vector(-37, 37, 0), App.Vector(0, 0, 1), 2),  # 15
    Part.Circle(App.Vector(37, 37, 0), App.Vector(0, 0, 1), 2),  # 16
    Part.Circle(App.Vector(37, -37, 0), App.Vector(0, 0, 1), 2),  # 17
    Part.Circle(App.Vector(-37, -37, 0), App.Vector(0, 0, 1), 2),  # 18
], False)
sketch8.addConstraint([
    Sketcher.Constraint("Equal", 0, 1),
    Sketcher.Constraint("Equal", 1, 2),
    Sketcher.Constraint("Equal", 2, 3),
    Sketcher.Constraint("Equal", 3, 4),
    Sketcher.Constraint("Equal", 4, 5),
    Sketcher.Constraint("Equal", 5, 6),
    Sketcher.Constraint("Equal", 6, 7),
    Sketcher.Constraint("Equal", 7, 8),
    Sketcher.Constraint("Equal", 8, 9),
    Sketcher.Constraint("Equal", 9, 10),
    Sketcher.Constraint("Equal", 10, 11),
    Sketcher.Constraint("Equal", 11, 12),
    Sketcher.Constraint("Equal", 12, 13),
    Sketcher.Constraint("Equal", 13, 14),
    Sketcher.Constraint("Equal", 14, 15),
    Sketcher.Constraint("Equal", 15, 16),
    Sketcher.Constraint("Equal", 16, 17),
    Sketcher.Constraint("Equal", 17, 18),
    Sketcher.Constraint("Symmetric", 8, 3, 9, 3, -1, 1),
    Sketcher.Constraint("Symmetric", 7, 3, 10, 3, -1, 1),
    Sketcher.Constraint("Symmetric", 11, 3, 13, 3, -1, 1),
    Sketcher.Constraint("Symmetric", 12, 3, 14, 3, -1, 1),
    Sketcher.Constraint("Symmetric", 15, 3, 17, 3, -1, 1),
    Sketcher.Constraint("Symmetric", 16, 3, 18, 3, -1, 1),
    Sketcher.Constraint("Symmetric", 0, 3, 1, 3, -2),
    Sketcher.Constraint("Symmetric", 2, 3, 3, 3, -2),
    Sketcher.Constraint("Symmetric", 4, 3, 5, 3, -2),
    Sketcher.Constraint("Symmetric", 11, 3, 12, 3, -2),
    Sketcher.Constraint("Symmetric", 15, 3, 16, 3, -2),
    Sketcher.Constraint("PointOnObject", 6, 3, -2),
    Sketcher.Constraint("PointOnObject", 7, 3, -2),
    Sketcher.Constraint("PointOnObject", 8, 3, -1),
    Sketcher.Constraint("Horizontal", 5, 3, 6, 3),
    Sketcher.Constraint("Vertical", 4, 3, 8, 3),
    Sketcher.Constraint("Diameter", 0, 4.0),
    Sketcher.Constraint("DistanceX", -1, 1, 0, 3, 13.0),
    Sketcher.Constraint("DistanceX", 2, 3, -1, 1, 22.0),
    Sketcher.Constraint("DistanceY", -1, 1, 2, 3, 69.0),
    Sketcher.Constraint("DistanceX", -1, 1, 4, 3, 62.0),
    Sketcher.Constraint("DistanceY", -1, 1, 7, 3, 65.0),
    Sketcher.Constraint("DistanceX", 11, 3, -1, 1, 54.0),
    Sketcher.Constraint("DistanceY", -1, 1, 11, 3, 54.0),
    Sketcher.Constraint("DistanceY", 4, 3, 0, 3, 66.0),
    Sketcher.Constraint("DistanceY", 17, 3, 4, 3, 0.1794),
    Sketcher.Constraint("DistanceY", -1, 1, 0, 3, 29.149963),
    Sketcher.Constraint("DistanceX", 15, 3, -1, 1, 37.029437),
])
pocket6 = body.newObject("PartDesign::Pocket", "Pocket005")
pocket6.Profile = sketch8
pocket6.Length = 10

# Sketch on XY plane
sketch9 = body.newObject("Sketcher::SketchObject", "Sketch008")
sketch9.AttachmentSupport = (doc.getObject("XY_Plane"), [""])
sketch9.MapMode = "FlatFace"
sketch9.AttachmentOffset = App.Placement(App.Vector(0, 0, 2), App.Rotation())
sketch9.addGeometry([
    Part.Circle(App.Vector(62, -36.9, 0), App.Vector(0, 0, 1), 2),  # 0
    Part.Circle(App.Vector(-62, -36.9, 0), App.Vector(0, 0, 1), 2),  # 1
    Part.Circle(App.Vector(13, 29.1, 0), App.Vector(0, 0, 1), 2),  # 2
    Part.Circle(App.Vector(-13, 29.1, 0), App.Vector(0, 0, 1), 2),  # 3
    Part.Circle(App.Vector(0, -36.9, 0), App.Vector(0, 0, 1), 2),  # 4
], False)
sketch9.addConstraint([
    Sketcher.Constraint("Equal", 0, 1),
    Sketcher.Constraint("Equal", 1, 2),
    Sketcher.Constraint("Equal", 2, 3),
    Sketcher.Constraint("Equal", 3, 4),
    Sketcher.Constraint("Symmetric", 0, 3, 1, 3, -2),
    Sketcher.Constraint("Symmetric", 2, 3, 3, 3, -2),
    Sketcher.Constraint("PointOnObject", 4, 3, -2),
    Sketcher.Constraint("Horizontal", 1, 3, 4, 3),
    Sketcher.Constraint("Diameter", 0, 4.0),
    Sketcher.Constraint("DistanceX", -1, 1, 0, 3, 62.0),
    Sketcher.Constraint("DistanceX", -1, 1, 2, 3, 13.0),
    Sketcher.Constraint("DistanceY", 0, 3, 2, 3, 66.0),
    Sketcher.Constraint("DistanceY", 0, 3, -1, 1, 36.850037),
])
pad3 = body.newObject("PartDesign::Pad", "Pad002")
pad3.Profile = sketch9
pad3.Length = 2
pad3.Reversed = True

# Sketch on XY plane
sketch10 = body.newObject("Sketcher::SketchObject", "Sketch009")
sketch10.AttachmentSupport = (doc.getObject("XY_Plane"), [""])
sketch10.MapMode = "FlatFace"
sketch10.AttachmentOffset = App.Placement(App.Vector(0, 0, 2), App.Rotation())
sketch10.addGeometry([
    Part.Circle(App.Vector(-62, -36, 0), App.Vector(0, 0, 1), 2),
    Part.Circle(App.Vector(62, -36, 0), App.Vector(0, 0, 1), 2),
], False)
sketch10.addConstraint([
    Sketcher.Constraint("Equal", 0, 1),
    Sketcher.Constraint("Symmetric", 0, 3, 1, 3, -2),
    Sketcher.Constraint("Diameter", 0, 4.0),
    Sketcher.Constraint("DistanceX", 0, 3, -1, 1, 62.0),
    Sketcher.Constraint("DistanceY", 0, 3, -1, 1, 36.0),
])
pocket7 = body.newObject("PartDesign::Pocket", "Pocket006")
pocket7.Profile = sketch10
pocket7.Length = 10

# Sketch on XY plane
sketch11 = body.newObject("Sketcher::SketchObject", "Sketch010")
sketch11.AttachmentSupport = (doc.getObject("XY_Plane"), [""])
sketch11.MapMode = "FlatFace"
sketch11.AttachmentOffset = App.Placement(App.Vector(0, 0, 2), App.Rotation())
sketch11.addGeometry([
    Part.Circle(App.Vector(62, -36, 0), App.Vector(0, 0, 1), 2),
    Part.Circle(App.Vector(-62, -36, 0), App.Vector(0, 0, 1), 2),
], False)
sketch11.addConstraint([
    Sketcher.Constraint("Equal", 0, 1),
    Sketcher.Constraint("Symmetric", 0, 3, 1, 3, -2),
    Sketcher.Constraint("Diameter", 0, 4.0),
    Sketcher.Constraint("DistanceX", -1, 1, 0, 3, 62.0),
    Sketcher.Constraint("DistanceY", 0, 3, -1, 1, 36.0),
])
pad4 = body.newObject("PartDesign::Pad", "Pad003")
pad4.Profile = sketch11
pad4.Length = 2
pad4.Reversed = True

# Sketch on XY plane
sketch12 = body.newObject("Sketcher::SketchObject", "Sketch011")
sketch12.AttachmentSupport = (doc.getObject("XY_Plane"), [""])
sketch12.MapMode = "FlatFace"
sketch12.AttachmentOffset = App.Placement(App.Vector(0, 0, 2), App.Rotation())
sketch12.addGeometry([
    Part.Circle(App.Vector(62, -35, 0), App.Vector(0, 0, 1), 2),
    Part.Circle(App.Vector(-62, -35, 0), App.Vector(0, 0, 1), 2),
], False)
sketch12.addConstraint([
    Sketcher.Constraint("Equal", 0, 1),
    Sketcher.Constraint("Symmetric", 0, 3, 1, 3, -2),
    Sketcher.Constraint("Diameter", 0, 4.0),
    Sketcher.Constraint("DistanceX", -1, 1, 0, 3, 62.0),
    Sketcher.Constraint("DistanceY", 0, 3, -1, 1, 35.0),
])
pocket8 = body.newObject("PartDesign::Pocket", "Pocket007")
pocket8.Profile = sketch12
pocket8.Length = 5

doc.recompute()
